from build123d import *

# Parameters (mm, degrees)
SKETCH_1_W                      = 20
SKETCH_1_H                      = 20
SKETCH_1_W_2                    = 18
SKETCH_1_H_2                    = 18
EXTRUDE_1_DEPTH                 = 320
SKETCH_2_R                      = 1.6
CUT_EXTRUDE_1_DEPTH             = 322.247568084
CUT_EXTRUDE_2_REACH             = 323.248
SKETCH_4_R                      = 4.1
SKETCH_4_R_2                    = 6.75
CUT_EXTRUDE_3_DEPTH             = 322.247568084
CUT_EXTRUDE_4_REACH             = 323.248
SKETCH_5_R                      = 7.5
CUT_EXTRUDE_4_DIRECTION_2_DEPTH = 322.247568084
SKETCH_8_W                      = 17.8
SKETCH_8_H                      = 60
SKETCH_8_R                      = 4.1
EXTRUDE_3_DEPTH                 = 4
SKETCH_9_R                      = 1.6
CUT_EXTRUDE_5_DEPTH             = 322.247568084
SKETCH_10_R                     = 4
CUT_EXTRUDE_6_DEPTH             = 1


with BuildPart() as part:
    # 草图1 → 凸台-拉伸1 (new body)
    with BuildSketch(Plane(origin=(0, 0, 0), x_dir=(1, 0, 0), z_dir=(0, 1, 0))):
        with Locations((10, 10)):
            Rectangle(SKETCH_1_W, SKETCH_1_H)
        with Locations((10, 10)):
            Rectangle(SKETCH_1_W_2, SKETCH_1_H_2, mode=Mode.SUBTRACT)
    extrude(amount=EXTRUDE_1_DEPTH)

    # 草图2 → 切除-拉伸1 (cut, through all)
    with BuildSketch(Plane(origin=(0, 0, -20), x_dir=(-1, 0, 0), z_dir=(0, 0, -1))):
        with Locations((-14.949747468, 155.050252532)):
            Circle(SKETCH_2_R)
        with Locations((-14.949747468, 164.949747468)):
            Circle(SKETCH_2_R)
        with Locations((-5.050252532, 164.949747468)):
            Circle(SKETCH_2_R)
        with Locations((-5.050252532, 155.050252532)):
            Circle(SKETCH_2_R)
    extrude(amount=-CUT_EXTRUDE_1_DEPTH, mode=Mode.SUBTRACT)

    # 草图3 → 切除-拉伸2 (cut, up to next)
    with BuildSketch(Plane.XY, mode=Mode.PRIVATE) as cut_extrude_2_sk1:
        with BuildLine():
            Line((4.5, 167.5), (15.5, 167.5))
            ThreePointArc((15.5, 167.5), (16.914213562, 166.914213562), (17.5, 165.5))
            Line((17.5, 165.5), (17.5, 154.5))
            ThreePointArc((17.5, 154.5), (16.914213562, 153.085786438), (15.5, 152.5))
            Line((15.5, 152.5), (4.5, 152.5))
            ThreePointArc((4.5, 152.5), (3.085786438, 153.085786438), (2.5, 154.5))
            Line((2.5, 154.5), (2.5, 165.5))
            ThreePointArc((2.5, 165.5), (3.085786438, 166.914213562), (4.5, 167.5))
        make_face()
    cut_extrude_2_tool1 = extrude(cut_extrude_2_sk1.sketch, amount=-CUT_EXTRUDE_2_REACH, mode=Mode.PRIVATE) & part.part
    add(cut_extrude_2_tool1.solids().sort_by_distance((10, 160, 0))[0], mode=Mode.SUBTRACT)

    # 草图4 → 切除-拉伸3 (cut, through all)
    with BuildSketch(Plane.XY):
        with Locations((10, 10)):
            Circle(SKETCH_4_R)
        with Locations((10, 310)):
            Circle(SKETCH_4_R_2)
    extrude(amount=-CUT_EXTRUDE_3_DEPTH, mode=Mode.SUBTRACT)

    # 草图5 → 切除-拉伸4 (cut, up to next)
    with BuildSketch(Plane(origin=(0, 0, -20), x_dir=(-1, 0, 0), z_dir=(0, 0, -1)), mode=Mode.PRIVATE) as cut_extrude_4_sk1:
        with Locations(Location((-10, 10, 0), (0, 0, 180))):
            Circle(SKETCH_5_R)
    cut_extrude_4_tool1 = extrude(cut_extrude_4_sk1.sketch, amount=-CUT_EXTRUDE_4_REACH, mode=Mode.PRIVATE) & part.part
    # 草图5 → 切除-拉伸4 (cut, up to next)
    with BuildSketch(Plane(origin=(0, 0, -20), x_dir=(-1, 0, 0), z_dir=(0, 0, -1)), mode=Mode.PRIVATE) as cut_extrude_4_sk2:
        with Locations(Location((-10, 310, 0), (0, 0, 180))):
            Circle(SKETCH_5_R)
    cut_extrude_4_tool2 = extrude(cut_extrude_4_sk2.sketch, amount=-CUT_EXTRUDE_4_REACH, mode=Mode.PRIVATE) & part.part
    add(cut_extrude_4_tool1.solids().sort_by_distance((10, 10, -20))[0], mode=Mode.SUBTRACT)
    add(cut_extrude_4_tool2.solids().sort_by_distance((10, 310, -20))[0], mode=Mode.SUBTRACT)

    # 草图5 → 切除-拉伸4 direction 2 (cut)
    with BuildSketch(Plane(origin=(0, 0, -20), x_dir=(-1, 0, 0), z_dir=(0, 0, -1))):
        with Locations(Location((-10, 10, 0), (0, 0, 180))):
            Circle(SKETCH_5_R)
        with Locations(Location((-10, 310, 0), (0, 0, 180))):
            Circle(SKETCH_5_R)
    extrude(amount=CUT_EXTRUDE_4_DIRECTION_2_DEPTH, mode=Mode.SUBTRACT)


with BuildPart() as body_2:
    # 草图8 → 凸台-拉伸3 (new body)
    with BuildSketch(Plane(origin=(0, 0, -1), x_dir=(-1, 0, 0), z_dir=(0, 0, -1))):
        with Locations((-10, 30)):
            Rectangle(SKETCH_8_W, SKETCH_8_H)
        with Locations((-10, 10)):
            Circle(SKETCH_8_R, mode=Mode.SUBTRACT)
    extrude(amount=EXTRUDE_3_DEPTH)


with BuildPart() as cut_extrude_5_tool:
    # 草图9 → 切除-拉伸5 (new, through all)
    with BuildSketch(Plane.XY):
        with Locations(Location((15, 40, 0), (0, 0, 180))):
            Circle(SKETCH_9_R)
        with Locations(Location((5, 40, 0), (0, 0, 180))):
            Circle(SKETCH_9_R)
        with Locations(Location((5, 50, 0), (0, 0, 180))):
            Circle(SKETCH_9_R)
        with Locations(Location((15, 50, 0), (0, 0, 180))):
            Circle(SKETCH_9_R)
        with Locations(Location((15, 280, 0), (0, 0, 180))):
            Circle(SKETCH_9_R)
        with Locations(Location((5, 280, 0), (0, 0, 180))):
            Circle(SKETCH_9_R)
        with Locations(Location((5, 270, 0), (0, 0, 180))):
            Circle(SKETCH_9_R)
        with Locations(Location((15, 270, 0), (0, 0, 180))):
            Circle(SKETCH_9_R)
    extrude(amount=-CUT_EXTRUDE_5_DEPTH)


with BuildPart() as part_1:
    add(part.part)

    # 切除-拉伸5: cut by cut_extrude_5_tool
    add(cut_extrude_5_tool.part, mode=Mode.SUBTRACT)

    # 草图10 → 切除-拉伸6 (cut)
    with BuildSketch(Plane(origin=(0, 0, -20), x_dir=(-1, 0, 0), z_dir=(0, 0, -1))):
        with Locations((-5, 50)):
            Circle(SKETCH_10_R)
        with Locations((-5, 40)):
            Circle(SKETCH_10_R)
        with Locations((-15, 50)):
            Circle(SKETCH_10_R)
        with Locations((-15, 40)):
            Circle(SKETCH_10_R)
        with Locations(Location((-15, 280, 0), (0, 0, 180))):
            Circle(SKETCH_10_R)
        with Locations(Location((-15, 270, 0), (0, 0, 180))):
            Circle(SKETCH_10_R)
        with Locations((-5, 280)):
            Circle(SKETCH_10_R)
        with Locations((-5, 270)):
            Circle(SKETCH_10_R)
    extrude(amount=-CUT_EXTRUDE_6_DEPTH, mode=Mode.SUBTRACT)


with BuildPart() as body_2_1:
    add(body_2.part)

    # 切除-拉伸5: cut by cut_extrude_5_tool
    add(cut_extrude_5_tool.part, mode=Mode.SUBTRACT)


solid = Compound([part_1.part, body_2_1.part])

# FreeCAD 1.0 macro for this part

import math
import FreeCAD as App
import Part
import Sketcher
from FreeCAD import Vector

doc = App.newDocument("Part")
body = doc.addObject("PartDesign::Body", "Body")

# Sketch on XZ plane
sketch1 = doc.addObject("Sketcher::SketchObject", "Sketch")
body.addObject(sketch1)
sketch1.AttachmentSupport = (doc.XZ_Plane, [""])
sketch1.MapMode = "FlatFace"
sketch1.addGeometry([
    Part.LineSegment(Vector(0, -20, 0), Vector(0, 0, 0)),  # 0
    Part.LineSegment(Vector(0, 0, 0), Vector(20, 0, 0)),  # 1
    Part.LineSegment(Vector(20, 0, 0), Vector(20, -20, 0)),  # 2
    Part.LineSegment(Vector(20, -20, 0), Vector(0, -20, 0)),  # 3
    Part.LineSegment(Vector(19, -1, 0), Vector(1, -1, 0)),  # 4
    Part.LineSegment(Vector(1, -1, 0), Vector(1, -19, 0)),  # 5
    Part.LineSegment(Vector(1, -19, 0), Vector(19, -19, 0)),  # 6
    Part.LineSegment(Vector(19, -19, 0), Vector(19, -1, 0)),  # 7
], False)
sketch1.addConstraint([
    Sketcher.Constraint("Coincident", 0, 2, 1, 1),
    Sketcher.Constraint("Coincident", 1, 2, 2, 1),
    Sketcher.Constraint("Coincident", 2, 2, 3, 1),
    Sketcher.Constraint("Coincident", 3, 2, 0, 1),
    Sketcher.Constraint("Coincident", 4, 2, 5, 1),
    Sketcher.Constraint("Coincident", 5, 2, 6, 1),
    Sketcher.Constraint("Coincident", 6, 2, 7, 1),
    Sketcher.Constraint("Coincident", 7, 2, 4, 1),
    Sketcher.Constraint("Vertical", 0),
    Sketcher.Constraint("Horizontal", 1),
    Sketcher.Constraint("Vertical", 2),
    Sketcher.Constraint("Horizontal", 3),
    Sketcher.Constraint("Horizontal", 4),
    Sketcher.Constraint("Vertical", 5),
    Sketcher.Constraint("Horizontal", 6),
    Sketcher.Constraint("Vertical", 7),
    Sketcher.Constraint("Coincident", 0, 2, -1, 1),
    Sketcher.Constraint("Equal", 3, 0),
    Sketcher.Constraint("Equal", 6, 5),
    Sketcher.Constraint("DistanceX", 1, 1, 1, 2, 20.0),
    Sketcher.Constraint("DistanceX", 4, 2, 4, 1, 18.0),
    Sketcher.Constraint("DistanceX", -1, 1, 4, 2, 1.0),
    Sketcher.Constraint("DistanceY", 4, 2, -1, 1, 1.0),
])
pad1 = doc.addObject("PartDesign::Pad", "Pad")
body.addObject(pad1)
pad1.Profile = sketch1
pad1.Length = 320
pad1.Reversed = True

# Sketch on XY plane
sketch2 = doc.addObject("Sketcher::SketchObject", "Sketch001")
body.addObject(sketch2)
sketch2.AttachmentSupport = (doc.XY_Plane, [""])
sketch2.MapMode = "FlatFace"
sketch2.AttachmentOffset = App.Placement(Vector(0, 0, -20), App.Rotation())
sketch2.addGeometry([
    Part.Circle(Vector(14.949747, 155.050253, 0), Vector(0, 0, 1), 1.6),
    Part.Circle(Vector(14.949747, 164.949747, 0), Vector(0, 0, 1), 1.6),
    Part.Circle(Vector(5.050253, 164.949747, 0), Vector(0, 0, 1), 1.6),
    Part.Circle(Vector(5.050253, 155.050253, 0), Vector(0, 0, 1), 1.6),
], False)
sketch2.addConstraint([
    Sketcher.Constraint("Equal", 0, 1),
    Sketcher.Constraint("Equal", 1, 2),
    Sketcher.Constraint("Equal", 2, 3),
    Sketcher.Constraint("Horizontal", 1, 3, 2, 3),
    Sketcher.Constraint("Horizontal", 0, 3, 3, 3),
    Sketcher.Constraint("Vertical", 0, 3, 1, 3),
    Sketcher.Constraint("Vertical", 2, 3, 3, 3),
    Sketcher.Constraint("Diameter", 0, 3.2),
    Sketcher.Constraint("DistanceX", -1, 1, 0, 3, 14.949747),
    Sketcher.Constraint("DistanceY", -1, 1, 0, 3, 155.050253),
    Sketcher.Constraint("DistanceY", -1, 1, 1, 3, 164.949747),
    Sketcher.Constraint("DistanceX", -1, 1, 2, 3, 5.050253),
])
pocket1 = doc.addObject("PartDesign::Pocket", "Pocket")
body.addObject(pocket1)
pocket1.Profile = sketch2
pocket1.Type = "ThroughAll"
pocket1.Reversed = True

# Sketch on XY plane
sketch3 = doc.addObject("Sketcher::SketchObject", "Sketch002")
body.addObject(sketch3)
sketch3.AttachmentSupport = (doc.XY_Plane, [""])
sketch3.MapMode = "FlatFace"
sketch3.addGeometry([
    Part.LineSegment(Vector(15.5, 167.5, 0), Vector(4.5, 167.5, 0)),  # 0
    Part.ArcOfCircle(Part.Circle(Vector(4.5, 165.5, 0), Vector(0, 0, 1), 2), math.radians(90), math.radians(180)),  # 1
    Part.LineSegment(Vector(2.5, 165.5, 0), Vector(2.5, 154.5, 0)),  # 2
    Part.ArcOfCircle(Part.Circle(Vector(4.5, 154.5, 0), Vector(0, 0, 1), 2), math.radians(-180), math.radians(-90)),  # 3
    Part.LineSegment(Vector(4.5, 152.5, 0), Vector(15.5, 152.5, 0)),  # 4
    Part.ArcOfCircle(Part.Circle(Vector(15.5, 154.5, 0), Vector(0, 0, 1), 2), math.radians(-90), math.radians(0)),  # 5
    Part.LineSegment(Vector(17.5, 154.5, 0), Vector(17.5, 165.5, 0)),  # 6
    Part.ArcOfCircle(Part.Circle(Vector(15.5, 165.5, 0), Vector(0, 0, 1), 2), math.radians(0), math.radians(90)),  # 7
], False)
sketch3.addConstraint([
    Sketcher.Constraint("Tangent", 0, 2, 1, 1),
    Sketcher.Constraint("Tangent", 1, 2, 2, 1),
    Sketcher.Constraint("Tangent", 2, 2, 3, 1),
    Sketcher.Constraint("Tangent", 3, 2, 4, 1),
    Sketcher.Constraint("Tangent", 4, 2, 5, 1),
    Sketcher.Constraint("Tangent", 5, 2, 6, 1),
    Sketcher.Constraint("Tangent", 6, 2, 7, 1),
    Sketcher.Constraint("Tangent", 7, 2, 0, 1),
    Sketcher.Constraint("Horizontal", 0),
    Sketcher.Constraint("Vertical", 2),
    Sketcher.Constraint("Horizontal", 4),
    Sketcher.Constraint("Vertical", 6),
    Sketcher.Constraint("Equal", 1, 3),
    Sketcher.Constraint("Equal", 3, 5),
    Sketcher.Constraint("Equal", 5, 7),
    Sketcher.Constraint("Equal", 4, 2),
    Sketcher.Constraint("Radius", 1, 2.0),
    Sketcher.Constraint("DistanceX", 0, 2, 0, 1, 11.0),
    Sketcher.Constraint("DistanceX", -1, 1, 1, 3, 4.5),
    Sketcher.Constraint("DistanceY", -1, 1, 1, 3, 165.5),
])
pocket2 = doc.addObject("PartDesign::Pocket", "Pocket001")
body.addObject(pocket2)
pocket2.Profile = sketch3
pocket2.Type = "UpToFirst"

# Sketch on XY plane
sketch4 = doc.addObject("Sketcher::SketchObject", "Sketch003")
body.addObject(sketch4)
sketch4.AttachmentSupport = (doc.XY_Plane, [""])
sketch4.MapMode = "FlatFace"
sketch4.addGeometry([
    Part.Circle(Vector(10, 10, 0), Vector(0, 0, 1), 4.1),
    Part.Circle(Vector(10, 310, 0), Vector(0, 0, 1), 6.75),
], False)
sketch4.addConstraint([
    Sketcher.Constraint("Vertical", 0, 3, 1, 3),
    Sketcher.Constraint("Diameter", 0, 8.2),
    Sketcher.Constraint("Diameter", 1, 13.5),
    Sketcher.Constraint("DistanceX", -1, 1, 0, 3, 10.0),
    Sketcher.Constraint("DistanceY", -1, 1, 0, 3, 10.0),
    Sketcher.Constraint("DistanceY", -1, 1, 1, 3, 310.0),
])
pocket3 = doc.addObject("PartDesign::Pocket", "Pocket002")
body.addObject(pocket3)
pocket3.Profile = sketch4
pocket3.Type = "ThroughAll"

# Sketch on XY plane
sketch5 = doc.addObject("Sketcher::SketchObject", "Sketch004")
body.addObject(sketch5)
sketch5.AttachmentSupport = (doc.XY_Plane, [""])
sketch5.MapMode = "FlatFace"
sketch5.AttachmentOffset = App.Placement(Vector(0, 0, -20), App.Rotation())
sketch5.addGeometry(Part.Circle(Vector(10, 10, 0), Vector(0, 0, 1), 7.5), False)
sketch5.addConstraint([
    Sketcher.Constraint("Diameter", 0, 15.0),
    Sketcher.Constraint("DistanceX", -1, 1, 0, 3, 10.0),
    Sketcher.Constraint("DistanceY", -1, 1, 0, 3, 10.0),
])
pocket4 = doc.addObject("PartDesign::Pocket", "Pocket003")
body.addObject(pocket4)
pocket4.Profile = sketch5
pocket4.Length = 1
pocket4.Reversed = True

# Sketch on XY plane
sketch6 = doc.addObject("Sketcher::SketchObject", "Sketch005")
body.addObject(sketch6)
sketch6.AttachmentSupport = (doc.XY_Plane, [""])
sketch6.MapMode = "FlatFace"
sketch6.AttachmentOffset = App.Placement(Vector(0, 0, -20), App.Rotation())
sketch6.addGeometry(Part.Circle(Vector(10, 310, 0), Vector(0, 0, 1), 7.5), False)
sketch6.addConstraint([
    Sketcher.Constraint("Diameter", 0, 15.0),
    Sketcher.Constraint("DistanceX", -1, 1, 0, 3, 10.0),
    Sketcher.Constraint("DistanceY", -1, 1, 0, 3, 310.0),
])
pocket5 = doc.addObject("PartDesign::Pocket", "Pocket004")
body.addObject(pocket5)
pocket5.Profile = sketch6
pocket5.Length = 1
pocket5.Reversed = True

# Sketch on XY plane
sketch7 = doc.addObject("Sketcher::SketchObject", "Sketch006")
body.addObject(sketch7)
sketch7.AttachmentSupport = (doc.XY_Plane, [""])
sketch7.MapMode = "FlatFace"
sketch7.AttachmentOffset = App.Placement(Vector(0, 0, -20), App.Rotation())
sketch7.addGeometry([
    Part.Circle(Vector(10, 10, 0), Vector(0, 0, 1), 7.5),
    Part.Circle(Vector(10, 310, 0), Vector(0, 0, 1), 7.5),
], False)
sketch7.addConstraint([
    Sketcher.Constraint("Equal", 0, 1),
    Sketcher.Constraint("Vertical", 0, 3, 1, 3),
    Sketcher.Constraint("Diameter", 0, 15.0),
    Sketcher.Constraint("DistanceX", -1, 1, 0, 3, 10.0),
    Sketcher.Constraint("DistanceY", -1, 1, 0, 3, 10.0),
    Sketcher.Constraint("DistanceY", -1, 1, 1, 3, 310.0),
])
pocket6 = doc.addObject("PartDesign::Pocket", "Pocket005")
body.addObject(pocket6)
pocket6.Profile = sketch7
pocket6.Length = 322.247568
body2 = doc.addObject("PartDesign::Body", "Body001")

# Sketch on XY plane
sketch8 = doc.addObject("Sketcher::SketchObject", "Sketch007")
body2.addObject(sketch8)
sketch8.AttachmentSupport = (doc.getObject("XY_Plane001"), [""])
sketch8.MapMode = "FlatFace"
sketch8.AttachmentOffset = App.Placement(Vector(0, 0, -1), App.Rotation())
sketch8.addGeometry([
    Part.LineSegment(Vector(18.9, 60, 0), Vector(18.9, 0, 0)),  # 0
    Part.LineSegment(Vector(18.9, 0, 0), Vector(1.1, 0, 0)),  # 1
    Part.LineSegment(Vector(1.1, 0, 0), Vector(1.1, 60, 0)),  # 2
    Part.LineSegment(Vector(1.1, 60, 0), Vector(18.9, 60, 0)),  # 3
    Part.Circle(Vector(10, 10, 0), Vector(0, 0, 1), 4.1),  # 4
], False)
sketch8.addConstraint([
    Sketcher.Constraint("Coincident", 0, 2, 1, 1),
    Sketcher.Constraint("Coincident", 1, 2, 2, 1),
    Sketcher.Constraint("Coincident", 2, 2, 3, 1),
    Sketcher.Constraint("Coincident", 3, 2, 0, 1),
    Sketcher.Constraint("Vertical", 0),
    Sketcher.Constraint("Horizontal", 1),
    Sketcher.Constraint("Vertical", 2),
    Sketcher.Constraint("Horizontal", 3),
    Sketcher.Constraint("PointOnObject", 0, 2, -1),
    Sketcher.Constraint("Diameter", 4, 8.2),
    Sketcher.Constraint("DistanceY", 0, 2, 0, 1, 60.0),
    Sketcher.Constraint("DistanceX", 1, 2, 1, 1, 17.8),
    Sketcher.Constraint("DistanceX", -1, 1, 4, 3, 10.0),
    Sketcher.Constraint("DistanceY", -1, 1, 4, 3, 10.0),
    Sketcher.Constraint("DistanceX", -1, 1, 0, 2, 18.9),
])
pad2 = doc.addObject("PartDesign::Pad", "Pad001")
body2.addObject(pad2)
pad2.Profile = sketch8
pad2.Length = 4
pad2.Reversed = True
body3 = doc.addObject("PartDesign::Body", "Body002")
body3.AllowCompound = True

# Sketch on XY plane
sketch9 = doc.addObject("Sketcher::SketchObject", "Sketch008")
body3.addObject(sketch9)
sketch9.AttachmentSupport = (doc.getObject("XY_Plane002"), [""])
sketch9.MapMode = "FlatFace"
sketch9.addGeometry([
    Part.Circle(Vector(15, 40, 0), Vector(0, 0, 1), 1.6),  # 0
    Part.Circle(Vector(5, 40, 0), Vector(0, 0, 1), 1.6),  # 1
    Part.Circle(Vector(5, 50, 0), Vector(0, 0, 1), 1.6),  # 2
    Part.Circle(Vector(15, 50, 0), Vector(0, 0, 1), 1.6),  # 3
    Part.Circle(Vector(15, 280, 0), Vector(0, 0, 1), 1.6),  # 4
    Part.Circle(Vector(5, 280, 0), Vector(0, 0, 1), 1.6),  # 5
    Part.Circle(Vector(5, 270, 0), Vector(0, 0, 1), 1.6),  # 6
    Part.Circle(Vector(15, 270, 0), Vector(0, 0, 1), 1.6),  # 7
], False)
sketch9.addConstraint([
    Sketcher.Constraint("Equal", 0, 1),
    Sketcher.Constraint("Equal", 1, 2),
    Sketcher.Constraint("Equal", 2, 3),
    Sketcher.Constraint("Equal", 3, 4),
    Sketcher.Constraint("Equal", 4, 5),
    Sketcher.Constraint("Equal", 5, 6),
    Sketcher.Constraint("Equal", 6, 7),
    Sketcher.Constraint("Horizontal", 0, 3, 1, 3),
    Sketcher.Constraint("Horizontal", 2, 3, 3, 3),
    Sketcher.Constraint("Horizontal", 4, 3, 5, 3),
    Sketcher.Constraint("Horizontal", 6, 3, 7, 3),
    Sketcher.Constraint("Vertical", 1, 3, 2, 3),
    Sketcher.Constraint("Vertical", 0, 3, 3, 3),
    Sketcher.Constraint("Vertical", 3, 3, 4, 3),
    Sketcher.Constraint("Vertical", 2, 3, 5, 3),
    Sketcher.Constraint("Vertical", 5, 3, 6, 3),
    Sketcher.Constraint("Vertical", 4, 3, 7, 3),
    Sketcher.Constraint("Diameter", 0, 3.2),
    Sketcher.Constraint("DistanceX", -1, 1, 0, 3, 15.0),
    Sketcher.Constraint("DistanceY", -1, 1, 0, 3, 40.0),
    Sketcher.Constraint("DistanceX", -1, 1, 1, 3, 5.0),
    Sketcher.Constraint("DistanceY", -1, 1, 2, 3, 50.0),
    Sketcher.Constraint("DistanceY", -1, 1, 4, 3, 280.0),
    Sketcher.Constraint("DistanceY", -1, 1, 6, 3, 270.0),
])
pad3 = doc.addObject("PartDesign::Pad", "Pad002")
body3.addObject(pad3)
pad3.Profile = sketch9
pad3.Length = 322.247568
pad3.Reversed = True
doc.recompute()

body4 = doc.addObject("PartDesign::Body", "Body003")
body4.BaseFeature = body3
boolean = doc.addObject("PartDesign::Boolean", "Boolean")
body.addObject(boolean)
boolean.Type = "Cut"
boolean.addObjects([body4])
doc.recompute()

# Sketch on XY plane
sketch10 = doc.addObject("Sketcher::SketchObject", "Sketch009")
body.addObject(sketch10)
sketch10.AttachmentSupport = (doc.XY_Plane, [""])
sketch10.MapMode = "FlatFace"
sketch10.AttachmentOffset = App.Placement(Vector(0, 0, -20), App.Rotation())
sketch10.addGeometry([
    Part.Circle(Vector(5, 50, 0), Vector(0, 0, 1), 4),  # 0
    Part.Circle(Vector(5, 40, 0), Vector(0, 0, 1), 4),  # 1
    Part.Circle(Vector(15, 50, 0), Vector(0, 0, 1), 4),  # 2
    Part.Circle(Vector(15, 40, 0), Vector(0, 0, 1), 4),  # 3
    Part.Circle(Vector(15, 280, 0), Vector(0, 0, 1), 4),  # 4
    Part.Circle(Vector(15, 270, 0), Vector(0, 0, 1), 4),  # 5
    Part.Circle(Vector(5, 280, 0), Vector(0, 0, 1), 4),  # 6
    Part.Circle(Vector(5, 270, 0), Vector(0, 0, 1), 4),  # 7
], False)
sketch10.addConstraint([
    Sketcher.Constraint("Equal", 0, 1),
    Sketcher.Constraint("Equal", 1, 2),
    Sketcher.Constraint("Equal", 2, 3),
    Sketcher.Constraint("Equal", 3, 4),
    Sketcher.Constraint("Equal", 4, 5),
    Sketcher.Constraint("Equal", 5, 6),
    Sketcher.Constraint("Equal", 6, 7),
    Sketcher.Constraint("Horizontal", 0, 3, 2, 3),
    Sketcher.Constraint("Horizontal", 1, 3, 3, 3),
    Sketcher.Constraint("Horizontal", 4, 3, 6, 3),
    Sketcher.Constraint("Horizontal", 5, 3, 7, 3),
    Sketcher.Constraint("Vertical", 0, 3, 1, 3),
    Sketcher.Constraint("Vertical", 2, 3, 3, 3),
    Sketcher.Constraint("Vertical", 3, 3, 4, 3),
    Sketcher.Constraint("Vertical", 4, 3, 5, 3),
    Sketcher.Constraint("Vertical", 1, 3, 6, 3),
    Sketcher.Constraint("Vertical", 6, 3, 7, 3),
    Sketcher.Constraint("Diameter", 0, 8.0),
    Sketcher.Constraint("DistanceX", -1, 1, 0, 3, 5.0),
    Sketcher.Constraint("DistanceY", -1, 1, 0, 3, 50.0),
    Sketcher.Constraint("DistanceY", -1, 1, 1, 3, 40.0),
    Sketcher.Constraint("DistanceX", -1, 1, 2, 3, 15.0),
    Sketcher.Constraint("DistanceY", -1, 1, 4, 3, 280.0),
    Sketcher.Constraint("DistanceY", -1, 1, 5, 3, 270.0),
])
pocket7 = doc.addObject("PartDesign::Pocket", "Pocket006")
body.addObject(pocket7)
pocket7.Profile = sketch10
pocket7.Length = 1
pocket7.Reversed = True
doc.recompute()

boolean2 = doc.addObject("PartDesign::Boolean", "Boolean001")
body2.addObject(boolean2)
boolean2.Type = "Cut"
boolean2.addObjects([body3])

doc.recompute()
